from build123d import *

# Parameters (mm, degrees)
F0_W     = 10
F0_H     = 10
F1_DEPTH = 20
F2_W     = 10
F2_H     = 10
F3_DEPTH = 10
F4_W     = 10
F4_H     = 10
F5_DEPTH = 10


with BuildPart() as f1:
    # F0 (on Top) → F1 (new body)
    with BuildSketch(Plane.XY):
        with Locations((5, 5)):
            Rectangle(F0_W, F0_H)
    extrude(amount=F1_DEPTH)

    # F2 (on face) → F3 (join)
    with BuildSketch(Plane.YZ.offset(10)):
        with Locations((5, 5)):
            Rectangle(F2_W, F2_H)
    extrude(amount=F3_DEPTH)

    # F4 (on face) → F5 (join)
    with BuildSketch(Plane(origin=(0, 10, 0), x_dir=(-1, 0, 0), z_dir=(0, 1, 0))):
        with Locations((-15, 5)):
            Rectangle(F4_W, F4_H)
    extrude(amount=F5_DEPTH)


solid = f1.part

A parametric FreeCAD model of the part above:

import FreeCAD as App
import Part
import Sketcher

doc = App.newDocument("Part")
body = doc.addObject("PartDesign::Body", "Body")

sketch1 = doc.addObject("Sketcher::SketchObject", "Sketch")
body.addObject(sketch1)
sketch1.AttachmentSupport = (doc.XY_Plane, [""])
sketch1.MapMode = "FlatFace"
sketch1.addGeometry(Part.LineSegment(App.Vector(0, 10, 0), App.Vector(0, 0, 0)), False)
sketch1.addGeometry(Part.LineSegment(App.Vector(0, 0, 0), App.Vector(10, 0, 0)), False)
sketch1.addGeometry(Part.LineSegment(App.Vector(10, 0, 0), App.Vector(10, 10, 0)), False)
sketch1.addGeometry(Part.LineSegment(App.Vector(10, 10, 0), App.Vector(0, 10, 0)), False)
sketch1.addConstraint(Sketcher.Constraint("Coincident", 0, 2, 1, 1))
sketch1.addConstraint(Sketcher.Constraint("Coincident", 1, 2, 2, 1))
sketch1.addConstraint(Sketcher.Constraint("Coincident", 2, 2, 3, 1))
sketch1.addConstraint(Sketcher.Constraint("Coincident", 3, 2, 0, 1))
sketch1.addConstraint(Sketcher.Constraint("Vertical", 0))
sketch1.addConstraint(Sketcher.Constraint("Horizontal", 1))
sketch1.addConstraint(Sketcher.Constraint("Vertical", 2))
sketch1.addConstraint(Sketcher.Constraint("Horizontal", 3))
sketch1.addConstraint(Sketcher.Constraint("Coincident", 0, 2, -1, 1))
sketch1.addConstraint(Sketcher.Constraint("Equal", 3, 0))
sketch1.addConstraint(Sketcher.Constraint("DistanceX", 1, 1, 1, 2, 10.0))
pad1 = doc.addObject("PartDesign::Pad", "Pad")
body.addObject(pad1)
pad1.Profile = sketch1
pad1.Length = 20

sketch2 = doc.addObject("Sketcher::SketchObject", "Sketch001")
body.addObject(sketch2)
sketch2.AttachmentSupport = (doc.YZ_Plane, [""])
sketch2.MapMode = "FlatFace"
sketch2.AttachmentOffset = App.Placement(App.Vector(0, 0, 10), App.Rotation())
sketch2.addGeometry(Part.LineSegment(App.Vector(0, 10, 0), App.Vector(0, 0, 0)), False)
sketch2.addGeometry(Part.LineSegment(App.Vector(0, 0, 0), App.Vector(10, 0, 0)), False)
sketch2.addGeometry(Part.LineSegment(App.Vector(10, 0, 0), App.Vector(10, 10, 0)), False)
sketch2.addGeometry(Part.LineSegment(App.Vector(10, 10, 0), App.Vector(0, 10, 0)), False)
sketch2.addConstraint(Sketcher.Constraint("Coincident", 0, 2, 1, 1))
sketch2.addConstraint(Sketcher.Constraint("Coincident", 1, 2, 2, 1))
sketch2.addConstraint(Sketcher.Constraint("Coincident", 2, 2, 3, 1))
sketch2.addConstraint(Sketcher.Constraint("Coincident", 3, 2, 0, 1))
sketch2.addConstraint(Sketcher.Constraint("Vertical", 0))
sketch2.addConstraint(Sketcher.Constraint("Horizontal", 1))
sketch2.addConstraint(Sketcher.Constraint("Vertical", 2))
sketch2.addConstraint(Sketcher.Constraint("Horizontal", 3))
sketch2.addConstraint(Sketcher.Constraint("Coincident", 0, 2, -1, 1))
sketch2.addConstraint(Sketcher.Constraint("Equal", 3, 0))
sketch2.addConstraint(Sketcher.Constraint("DistanceX", 1, 1, 1, 2, 10.0))
pad2 = doc.addObject("PartDesign::Pad", "Pad001")
body.addObject(pad2)
pad2.Profile = sketch2
pad2.Length = 10

sketch3 = doc.addObject("Sketcher::SketchObject", "Sketch002")
body.addObject(sketch3)
sketch3.AttachmentSupport = (doc.XZ_Plane, [""])
sketch3.MapMode = "FlatFace"
sketch3.AttachmentOffset = App.Placement(App.Vector(0, 0, -10), App.Rotation())
sketch3.addGeometry(Part.LineSegment(App.Vector(20, 10, 0), App.Vector(20, 0, 0)), False)
sketch3.addGeometry(Part.LineSegment(App.Vector(20, 0, 0), App.Vector(10, 0, 0)), False)
sketch3.addGeometry(Part.LineSegment(App.Vector(10, 0, 0), App.Vector(10, 10, 0)), False)
sketch3.addGeometry(Part.LineSegment(App.Vector(10, 10, 0), App.Vector(20, 10, 0)), False)
sketch3.addConstraint(Sketcher.Constraint("Coincident", 0, 2, 1, 1))
sketch3.addConstraint(Sketcher.Constraint("Coincident", 1, 2, 2, 1))
sketch3.addConstraint(Sketcher.Constraint("Coincident", 2, 2, 3, 1))
sketch3.addConstraint(Sketcher.Constraint("Coincident", 3, 2, 0, 1))
sketch3.addConstraint(Sketcher.Constraint("Vertical", 0))
sketch3.addConstraint(Sketcher.Constraint("Horizontal", 1))
sketch3.addConstraint(Sketcher.Constraint("Vertical", 2))
sketch3.addConstraint(Sketcher.Constraint("Horizontal", 3))
sketch3.addConstraint(Sketcher.Constraint("PointOnObject", 0, 2, -1))
sketch3.addConstraint(Sketcher.Constraint("Equal", 3, 0))
sketch3.addConstraint(Sketcher.Constraint("DistanceX", 1, 2, 1, 1, 10.0))
sketch3.addConstraint(Sketcher.Constraint("DistanceX", -1, 1, 0, 2, 20.0))
pad3 = doc.addObject("PartDesign::Pad", "Pad002")
body.addObject(pad3)
pad3.Profile = sketch3
pad3.Length = 10
pad3.Reversed = True

doc.recompute()
